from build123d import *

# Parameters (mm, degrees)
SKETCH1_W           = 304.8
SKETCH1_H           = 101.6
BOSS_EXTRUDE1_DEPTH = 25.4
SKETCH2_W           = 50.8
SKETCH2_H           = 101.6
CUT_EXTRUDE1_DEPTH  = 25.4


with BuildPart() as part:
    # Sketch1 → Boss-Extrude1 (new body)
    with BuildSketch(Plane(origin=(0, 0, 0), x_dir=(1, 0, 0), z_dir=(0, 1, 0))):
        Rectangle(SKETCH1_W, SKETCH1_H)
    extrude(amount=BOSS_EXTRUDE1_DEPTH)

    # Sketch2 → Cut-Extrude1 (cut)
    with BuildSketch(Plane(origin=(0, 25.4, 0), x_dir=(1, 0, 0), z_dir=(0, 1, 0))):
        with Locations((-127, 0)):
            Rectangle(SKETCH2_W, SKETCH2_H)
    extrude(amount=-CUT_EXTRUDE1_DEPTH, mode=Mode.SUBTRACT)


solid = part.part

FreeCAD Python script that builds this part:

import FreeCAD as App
import Part
import Sketcher

V = App.Vector
Q = App.Units.Quantity

doc = App.newDocument("Part")
params = doc.addObject("Spreadsheet::Sheet", "Params")
for row, (alias, value) in enumerate([
    ("sketch1_width", "12 in"),
    ("sketch1_height", "4 in"),
    ("pad1_length", "1 in"),
    ("sketch2_width", "2 in"),
    ("sketch2_height", "4 in"),
    ("pocket1_length", "1 in"),
], start=1):
    params.set(f"A{row}", alias)
    params.set(f"B{row}", "=" + value)
    params.setAlias(f"B{row}", alias)

body = doc.addObject("PartDesign::Body", "Body")

sketch1 = body.newObject("Sketcher::SketchObject", "Sketch")
sketch1.AttachmentSupport = (doc.getObject("XZ_Plane"), [""])
sketch1.MapMode = "FlatFace"
sketch1.addGeometry([
    Part.LineSegment(V(-152, -51, 0), V(-152, 51, 0)),
    Part.LineSegment(V(-152, 51, 0), V(152, 51, 0)),
    Part.LineSegment(V(152, 51, 0), V(152, -51, 0)),
    Part.LineSegment(V(152, -51, 0), V(-152, -51, 0)),
], False)
sketch1.addConstraint([
    Sketcher.Constraint("Coincident", 0, 2, 1, 1),
    Sketcher.Constraint("Coincident", 1, 2, 2, 1),
    Sketcher.Constraint("Coincident", 2, 2, 3, 1),
    Sketcher.Constraint("Coincident", 3, 2, 0, 1),
    Sketcher.Constraint("Vertical", 0),
    Sketcher.Constraint("Horizontal", 1),
    Sketcher.Constraint("Vertical", 2),
    Sketcher.Constraint("Horizontal", 3),
    Sketcher.Constraint("Symmetric", 0, 2, 2, 2, -1, 1),
    Sketcher.Constraint("DistanceX", 1, 1, 1, 2, Q("12 in")),
    Sketcher.Constraint("DistanceY", 0, 1, 0, 2, Q("4 in")),
])
sketch1.setExpression("Constraints[9]", "Params.sketch1_width")
sketch1.setExpression("Constraints[10]", "Params.sketch1_height")
pad1 = body.newObject("PartDesign::Pad", "Pad")
pad1.Profile = sketch1
pad1.setExpression("Length", "Params.pad1_length")
pad1.Reversed = True

sketch2 = body.newObject("Sketcher::SketchObject", "Sketch001")
sketch2.AttachmentSupport = (doc.getObject("XZ_Plane"), [""])
sketch2.MapMode = "FlatFace"
sketch2.AttachmentOffset = App.Placement(V(0, 0, -1 * 25.4), App.Rotation())
sketch2.addGeometry([
    Part.LineSegment(V(-152, -51, 0), V(-152, 51, 0)),
    Part.LineSegment(V(-152, 51, 0), V(-102, 51, 0)),
    Part.LineSegment(V(-102, 51, 0), V(-102, -51, 0)),
    Part.LineSegment(V(-102, -51, 0), V(-152, -51, 0)),
], False)
sketch2.addConstraint([
    Sketcher.Constraint("Coincident", 0, 2, 1, 1),
    Sketcher.Constraint("Coincident", 1, 2, 2, 1),
    Sketcher.Constraint("Coincident", 2, 2, 3, 1),
    Sketcher.Constraint("Coincident", 3, 2, 0, 1),
    Sketcher.Constraint("Vertical", 0),
    Sketcher.Constraint("Horizontal", 1),
    Sketcher.Constraint("Vertical", 2),
    Sketcher.Constraint("Horizontal", 3),
    Sketcher.Constraint("DistanceX", 1, 1, 1, 2, Q("2 in")),
    Sketcher.Constraint("DistanceY", 0, 1, 0, 2, Q("4 in")),
    Sketcher.Constraint("DistanceX", 0, 2, -1, 1, Q("6 in")),
    Sketcher.Constraint("DistanceY", -1, 1, 0, 2, Q("2 in")),
])
sketch2.setExpression("Constraints[8]", "Params.sketch2_width")
sketch2.setExpression("Constraints[9]", "Params.sketch2_height")
pocket1 = body.newObject("PartDesign::Pocket", "Pocket")
pocket1.Profile = sketch2
pocket1.setExpression("Length", "Params.pocket1_length")
pocket1.Reversed = True

doc.recompute()
